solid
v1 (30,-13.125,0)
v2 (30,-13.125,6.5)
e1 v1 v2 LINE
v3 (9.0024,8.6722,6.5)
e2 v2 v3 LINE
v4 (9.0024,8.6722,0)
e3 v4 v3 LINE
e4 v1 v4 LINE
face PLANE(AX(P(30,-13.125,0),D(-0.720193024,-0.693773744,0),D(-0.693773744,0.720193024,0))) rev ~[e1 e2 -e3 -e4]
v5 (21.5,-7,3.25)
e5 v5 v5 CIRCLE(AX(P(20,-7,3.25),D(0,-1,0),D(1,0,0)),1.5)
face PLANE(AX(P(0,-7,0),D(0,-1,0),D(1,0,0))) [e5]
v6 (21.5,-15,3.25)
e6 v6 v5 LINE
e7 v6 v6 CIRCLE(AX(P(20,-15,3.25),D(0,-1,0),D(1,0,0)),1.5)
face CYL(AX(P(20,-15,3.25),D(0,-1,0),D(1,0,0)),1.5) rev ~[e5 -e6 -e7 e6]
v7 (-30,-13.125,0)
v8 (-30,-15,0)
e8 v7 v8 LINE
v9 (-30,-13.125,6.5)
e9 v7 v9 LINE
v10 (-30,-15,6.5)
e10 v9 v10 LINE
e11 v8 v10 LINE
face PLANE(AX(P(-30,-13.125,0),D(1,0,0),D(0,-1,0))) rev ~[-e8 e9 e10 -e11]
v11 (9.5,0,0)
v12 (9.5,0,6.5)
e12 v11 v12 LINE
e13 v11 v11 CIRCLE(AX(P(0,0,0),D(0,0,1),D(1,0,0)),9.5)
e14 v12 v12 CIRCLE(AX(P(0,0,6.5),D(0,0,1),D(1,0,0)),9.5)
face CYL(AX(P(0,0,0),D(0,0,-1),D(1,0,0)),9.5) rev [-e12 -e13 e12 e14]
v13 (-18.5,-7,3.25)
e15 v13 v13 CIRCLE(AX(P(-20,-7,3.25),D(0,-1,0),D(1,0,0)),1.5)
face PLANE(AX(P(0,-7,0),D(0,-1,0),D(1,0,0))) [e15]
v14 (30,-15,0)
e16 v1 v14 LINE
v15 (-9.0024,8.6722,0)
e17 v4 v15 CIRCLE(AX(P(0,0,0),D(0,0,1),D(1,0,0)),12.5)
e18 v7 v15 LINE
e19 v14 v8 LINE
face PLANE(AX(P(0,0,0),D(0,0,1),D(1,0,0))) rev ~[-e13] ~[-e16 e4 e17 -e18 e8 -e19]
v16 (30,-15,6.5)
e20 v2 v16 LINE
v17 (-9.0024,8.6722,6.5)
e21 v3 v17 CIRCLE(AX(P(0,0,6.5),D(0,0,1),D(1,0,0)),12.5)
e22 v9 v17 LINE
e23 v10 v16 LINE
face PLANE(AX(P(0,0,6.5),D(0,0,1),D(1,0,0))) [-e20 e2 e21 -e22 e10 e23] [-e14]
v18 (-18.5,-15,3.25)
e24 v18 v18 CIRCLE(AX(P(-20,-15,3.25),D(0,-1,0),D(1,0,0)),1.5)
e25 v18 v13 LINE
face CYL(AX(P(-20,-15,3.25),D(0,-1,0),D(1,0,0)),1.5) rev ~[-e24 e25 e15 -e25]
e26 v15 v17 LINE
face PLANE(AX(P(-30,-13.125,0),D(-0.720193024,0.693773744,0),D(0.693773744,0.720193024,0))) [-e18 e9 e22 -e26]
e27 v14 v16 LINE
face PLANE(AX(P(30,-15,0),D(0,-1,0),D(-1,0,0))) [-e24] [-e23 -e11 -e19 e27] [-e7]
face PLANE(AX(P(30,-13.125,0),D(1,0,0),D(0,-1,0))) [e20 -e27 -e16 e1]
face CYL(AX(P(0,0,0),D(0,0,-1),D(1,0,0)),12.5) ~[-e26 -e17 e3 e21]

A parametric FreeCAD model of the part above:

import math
import FreeCAD as App
import Part
import Sketcher

doc = App.newDocument("Part")
params = doc.addObject("Spreadsheet::Sheet", "Params")
for row, (alias, value) in enumerate([
    ("sketch1_diameter", "19 mm"),
    ("sketch1_radius", "12.5 mm"),
    ("pad1_length", "6.5 mm"),
    ("sketch2_diameter", "3 mm"),
    ("pocket1_length", "8 mm"),
], start=1):
    params.set(f"A{row}", alias)
    params.set(f"B{row}", "=" + value)
    params.setAlias(f"B{row}", alias)

body = doc.addObject("PartDesign::Body", "Body")

# Sketch on XY plane
sketch1 = body.newObject("Sketcher::SketchObject", "Sketch")
sketch1.AttachmentSupport = (doc.getObject("XY_Plane"), [""])
sketch1.MapMode = "FlatFace"
sketch1.addGeometry(Part.ArcOfCircle(Part.Circle(App.Vector(0, 0, 0), App.Vector(0, 0, 1), 12.5), math.radians(44), math.radians(136)), False)
sketch1.addGeometry(Part.LineSegment(App.Vector(-9, 8.7, 0), App.Vector(-30, -13.1, 0)), False)
sketch1.addGeometry(Part.LineSegment(App.Vector(-30, -13.1, 0), App.Vector(-30, -15, 0)), False)
sketch1.addGeometry(Part.LineSegment(App.Vector(-30, -15, 0), App.Vector(30, -15, 0)), False)
sketch1.addGeometry(Part.LineSegment(App.Vector(30, -15, 0), App.Vector(30, -13.1, 0)), False)
sketch1.addGeometry(Part.LineSegment(App.Vector(30, -13.1, 0), App.Vector(9, 8.7, 0)), False)
sketch1.addGeometry(Part.Circle(App.Vector(0, 0, 0), App.Vector(0, 0, 1), 9.5), False)
sketch1.addConstraint(Sketcher.Constraint("Tangent", 0, 2, 1, 1))
sketch1.addConstraint(Sketcher.Constraint("Coincident", 1, 2, 2, 1))
sketch1.addConstraint(Sketcher.Constraint("Coincident", 2, 2, 3, 1))
sketch1.addConstraint(Sketcher.Constraint("Coincident", 3, 2, 4, 1))
sketch1.addConstraint(Sketcher.Constraint("Coincident", 4, 2, 5, 1))
sketch1.addConstraint(Sketcher.Constraint("Tangent", 5, 2, 0, 1))
sketch1.addConstraint(Sketcher.Constraint("Vertical", 2))
sketch1.addConstraint(Sketcher.Constraint("Horizontal", 3))
sketch1.addConstraint(Sketcher.Constraint("Vertical", 4))
sketch1.addConstraint(Sketcher.Constraint("Coincident", 0, 3, -1, 1))
sketch1.addConstraint(Sketcher.Constraint("Coincident", 6, 3, -1, 1))
sketch1.addConstraint(Sketcher.Constraint("Symmetric", 1, 2, 4, 2, -2))
sketch1.addConstraint(Sketcher.Constraint("Diameter", 6, 19.0))
sketch1.addConstraint(Sketcher.Constraint("Radius", 0, 12.5))
sketch1.addConstraint(Sketcher.Constraint("DistanceX", 1, 2, -1, 1, 30.0))
sketch1.addConstraint(Sketcher.Constraint("DistanceY", 2, 2, 2, 1, 1.875))
sketch1.addConstraint(Sketcher.Constraint("DistanceY", 1, 2, -1, 1, 13.125))
sketch1.setExpression("Constraints[12]", "Params.sketch1_diameter")
sketch1.setExpression("Constraints[13]", "Params.sketch1_radius")
pad1 = body.newObject("PartDesign::Pad", "Pad")
pad1.Profile = sketch1
pad1.setExpression("Length", "Params.pad1_length")

# Sketch on XZ plane
sketch2 = body.newObject("Sketcher::SketchObject", "Sketch001")
sketch2.AttachmentSupport = (doc.getObject("XZ_Plane"), [""])
sketch2.MapMode = "FlatFace"
sketch2.AttachmentOffset = App.Placement(App.Vector(0, 0, 15), App.Rotation())
sketch2.addGeometry(Part.Circle(App.Vector(-20, 3.2, 0), App.Vector(0, 0, 1), 1.5), False)
sketch2.addGeometry(Part.Circle(App.Vector(20, 3.2, 0), App.Vector(0, 0, 1), 1.5), False)
sketch2.addConstraint(Sketcher.Constraint("Equal", 0, 1))
sketch2.addConstraint(Sketcher.Constraint("Symmetric", 0, 3, 1, 3, -2))
sketch2.addConstraint(Sketcher.Constraint("Diameter", 0, 3.0))
sketch2.addConstraint(Sketcher.Constraint("DistanceX", 0, 3, -1, 1, 20.0))
sketch2.addConstraint(Sketcher.Constraint("DistanceY", -1, 1, 0, 3, 3.25))
sketch2.setExpression("Constraints[2]", "Params.sketch2_diameter")
pocket1 = body.newObject("PartDesign::Pocket", "Pocket")
pocket1.Profile = sketch2
pocket1.setExpression("Length", "Params.pocket1_length")

doc.recompute()
